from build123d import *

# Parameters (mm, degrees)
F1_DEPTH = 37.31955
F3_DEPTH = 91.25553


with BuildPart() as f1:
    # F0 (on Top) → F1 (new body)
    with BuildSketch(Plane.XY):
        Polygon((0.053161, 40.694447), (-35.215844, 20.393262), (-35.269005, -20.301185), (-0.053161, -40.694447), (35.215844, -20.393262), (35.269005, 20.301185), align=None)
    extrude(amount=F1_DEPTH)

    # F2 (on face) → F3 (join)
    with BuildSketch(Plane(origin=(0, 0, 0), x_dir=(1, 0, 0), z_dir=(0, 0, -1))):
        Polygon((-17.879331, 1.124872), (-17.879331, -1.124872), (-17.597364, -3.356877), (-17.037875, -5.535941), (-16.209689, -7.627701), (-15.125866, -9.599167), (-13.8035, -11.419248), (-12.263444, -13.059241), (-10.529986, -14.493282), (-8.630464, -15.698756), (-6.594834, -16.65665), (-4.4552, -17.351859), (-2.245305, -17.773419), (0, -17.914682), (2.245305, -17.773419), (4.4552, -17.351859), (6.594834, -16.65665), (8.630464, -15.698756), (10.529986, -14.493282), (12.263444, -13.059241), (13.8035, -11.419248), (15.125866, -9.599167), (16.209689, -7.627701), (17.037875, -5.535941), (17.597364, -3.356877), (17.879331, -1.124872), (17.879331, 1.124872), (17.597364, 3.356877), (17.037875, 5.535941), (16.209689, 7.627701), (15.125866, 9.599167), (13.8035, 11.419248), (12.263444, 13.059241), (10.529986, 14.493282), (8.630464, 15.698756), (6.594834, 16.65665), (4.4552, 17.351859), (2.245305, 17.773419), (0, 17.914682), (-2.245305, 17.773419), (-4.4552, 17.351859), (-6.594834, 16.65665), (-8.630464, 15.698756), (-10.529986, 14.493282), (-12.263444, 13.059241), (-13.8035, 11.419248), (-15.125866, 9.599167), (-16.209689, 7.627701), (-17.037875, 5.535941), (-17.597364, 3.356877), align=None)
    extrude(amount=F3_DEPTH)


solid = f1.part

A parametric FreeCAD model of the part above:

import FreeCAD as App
import Part
import Sketcher
from FreeCAD import Vector
Q = App.Units.Quantity

doc = App.newDocument("Part")
body = doc.addObject("PartDesign::Body", "Body")

sketch1 = body.newObject("Sketcher::SketchObject", "Sketch")
sketch1.AttachmentSupport = (doc.getObject("XY_Plane"), [""])
sketch1.MapMode = "FlatFace"
sketch1.addGeometry([
    Part.LineSegment(Vector(0.053161, 40.694447, 0), Vector(-35.215844, 20.393262, 0)),
    Part.LineSegment(Vector(-35.215844, 20.393262, 0), Vector(-35.269005, -20.301185, 0)),
    Part.LineSegment(Vector(-35.269005, -20.301185, 0), Vector(-0.053161, -40.694447, 0)),
    Part.LineSegment(Vector(-0.053161, -40.694447, 0), Vector(35.215844, -20.393262, 0)),
    Part.LineSegment(Vector(35.215844, -20.393262, 0), Vector(35.269005, 20.301185, 0)),
    Part.LineSegment(Vector(35.269005, 20.301185, 0), Vector(0.053161, 40.694447, 0)),
], False)
sketch1.addConstraint([
    Sketcher.Constraint("Coincident", 0, 2, 1, 1),
    Sketcher.Constraint("Coincident", 1, 2, 2, 1),
    Sketcher.Constraint("Coincident", 2, 2, 3, 1),
    Sketcher.Constraint("Coincident", 3, 2, 4, 1),
    Sketcher.Constraint("Coincident", 4, 2, 5, 1),
    Sketcher.Constraint("Coincident", 5, 2, 0, 1),
    Sketcher.Constraint("Symmetric", 0, 2, 3, 2, -1, 1),
    Sketcher.Constraint("Symmetric", 1, 2, 4, 2, -1, 1),
    Sketcher.Constraint("Symmetric", 2, 2, 5, 2, -1, 1),
    Sketcher.Constraint("Equal", 0, 1),
    Sketcher.Constraint("Equal", 1, 2),
    Sketcher.Constraint("Distance", 0, Q("40.694482 mm")),
    Sketcher.Constraint("DistanceY", -1, 1, 0, 2, Q("20.393262 mm")),
    Sketcher.Constraint("DistanceX", 2, 2, -1, 1, Q("0.053161 mm")),
    Sketcher.Constraint("DistanceY", 2, 2, 1, 2, Q("20.393262 mm")),
])
pad1 = body.newObject("PartDesign::Pad", "Pad")
pad1.Profile = sketch1
pad1.Length = 37.31955

sketch2 = body.newObject("Sketcher::SketchObject", "Sketch001")
sketch2.AttachmentSupport = (doc.getObject("XY_Plane"), [""])
sketch2.MapMode = "FlatFace"
sketch2.addGeometry([
    Part.LineSegment(Vector(-17.879331, -1.124872, 0), Vector(-17.879331, 1.124872, 0)),
    Part.LineSegment(Vector(-17.879331, 1.124872, 0), Vector(-17.597364, 3.356877, 0)),
    Part.LineSegment(Vector(-17.597364, 3.356877, 0), Vector(-17.037875, 5.535941, 0)),
    Part.LineSegment(Vector(-17.037875, 5.535941, 0), Vector(-16.209689, 7.627701, 0)),
    Part.LineSegment(Vector(-16.209689, 7.627701, 0), Vector(-15.125866, 9.599167, 0)),
    Part.LineSegment(Vector(-15.125866, 9.599167, 0), Vector(-13.8035, 11.419248, 0)),
    Part.LineSegment(Vector(-13.8035, 11.419248, 0), Vector(-12.263444, 13.059241, 0)),
    Part.LineSegment(Vector(-12.263444, 13.059241, 0), Vector(-10.529986, 14.493282, 0)),
    Part.LineSegment(Vector(-10.529986, 14.493282, 0), Vector(-8.630464, 15.698756, 0)),
    Part.LineSegment(Vector(-8.630464, 15.698756, 0), Vector(-6.594834, 16.65665, 0)),
    Part.LineSegment(Vector(-6.594834, 16.65665, 0), Vector(-4.4552, 17.351859, 0)),
    Part.LineSegment(Vector(-4.4552, 17.351859, 0), Vector(-2.245305, 17.773419, 0)),
    Part.LineSegment(Vector(-2.245305, 17.773419, 0), Vector(0, 17.914682, 0)),
    Part.LineSegment(Vector(0, 17.914682, 0), Vector(2.245305, 17.773419, 0)),
    Part.LineSegment(Vector(2.245305, 17.773419, 0), Vector(4.4552, 17.351859, 0)),
    Part.LineSegment(Vector(4.4552, 17.351859, 0), Vector(6.594834, 16.65665, 0)),
    Part.LineSegment(Vector(6.594834, 16.65665, 0), Vector(8.630464, 15.698756, 0)),
    Part.LineSegment(Vector(8.630464, 15.698756, 0), Vector(10.529986, 14.493282, 0)),
    Part.LineSegment(Vector(10.529986, 14.493282, 0), Vector(12.263444, 13.059241, 0)),
    Part.LineSegment(Vector(12.263444, 13.059241, 0), Vector(13.8035, 11.419248, 0)),
    Part.LineSegment(Vector(13.8035, 11.419248, 0), Vector(15.125866, 9.599167, 0)),
    Part.LineSegment(Vector(15.125866, 9.599167, 0), Vector(16.209689, 7.627701, 0)),
    Part.LineSegment(Vector(16.209689, 7.627701, 0), Vector(17.037875, 5.535941, 0)),
    Part.LineSegment(Vector(17.037875, 5.535941, 0), Vector(17.597364, 3.356877, 0)),
    Part.LineSegment(Vector(17.597364, 3.356877, 0), Vector(17.879331, 1.124872, 0)),
    Part.LineSegment(Vector(17.879331, 1.124872, 0), Vector(17.879331, -1.124872, 0)),
    Part.LineSegment(Vector(17.879331, -1.124872, 0), Vector(17.597364, -3.356877, 0)),
    Part.LineSegment(Vector(17.597364, -3.356877, 0), Vector(17.037875, -5.535941, 0)),
    Part.LineSegment(Vector(17.037875, -5.535941, 0), Vector(16.209689, -7.627701, 0)),
    Part.LineSegment(Vector(16.209689, -7.627701, 0), Vector(15.125866, -9.599167, 0)),
    Part.LineSegment(Vector(15.125866, -9.599167, 0), Vector(13.8035, -11.419248, 0)),
    Part.LineSegment(Vector(13.8035, -11.419248, 0), Vector(12.263444, -13.059241, 0)),
    Part.LineSegment(Vector(12.263444, -13.059241, 0), Vector(10.529986, -14.493282, 0)),
    Part.LineSegment(Vector(10.529986, -14.493282, 0), Vector(8.630464, -15.698756, 0)),
    Part.LineSegment(Vector(8.630464, -15.698756, 0), Vector(6.594834, -16.65665, 0)),
    Part.LineSegment(Vector(6.594834, -16.65665, 0), Vector(4.4552, -17.351859, 0)),
    Part.LineSegment(Vector(4.4552, -17.351859, 0), Vector(2.245305, -17.773419, 0)),
    Part.LineSegment(Vector(2.245305, -17.773419, 0), Vector(0, -17.914682, 0)),
    Part.LineSegment(Vector(0, -17.914682, 0), Vector(-2.245305, -17.773419, 0)),
    Part.LineSegment(Vector(-2.245305, -17.773419, 0), Vector(-4.4552, -17.351859, 0)),
    Part.LineSegment(Vector(-4.4552, -17.351859, 0), Vector(-6.594834, -16.65665, 0)),
    Part.LineSegment(Vector(-6.594834, -16.65665, 0), Vector(-8.630464, -15.698756, 0)),
    Part.LineSegment(Vector(-8.630464, -15.698756, 0), Vector(-10.529986, -14.493282, 0)),
    Part.LineSegment(Vector(-10.529986, -14.493282, 0), Vector(-12.263444, -13.059241, 0)),
    Part.LineSegment(Vector(-12.263444, -13.059241, 0), Vector(-13.8035, -11.419248, 0)),
    Part.LineSegment(Vector(-13.8035, -11.419248, 0), Vector(-15.125866, -9.599167, 0)),
    Part.LineSegment(Vector(-15.125866, -9.599167, 0), Vector(-16.209689, -7.627701, 0)),
    Part.LineSegment(Vector(-16.209689, -7.627701, 0), Vector(-17.037875, -5.535941, 0)),
    Part.LineSegment(Vector(-17.037875, -5.535941, 0), Vector(-17.597364, -3.356877, 0)),
    Part.LineSegment(Vector(-17.597364, -3.356877, 0), Vector(-17.879331, -1.124872, 0)),
], False)
sketch2.addConstraint([
    Sketcher.Constraint("Coincident", 0, 2, 1, 1),
    Sketcher.Constraint("Coincident", 1, 2, 2, 1),
    Sketcher.Constraint("Coincident", 2, 2, 3, 1),
    Sketcher.Constraint("Coincident", 3, 2, 4, 1),
    Sketcher.Constraint("Coincident", 4, 2, 5, 1),
    Sketcher.Constraint("Coincident", 5, 2, 6, 1),
    Sketcher.Constraint("Coincident", 6, 2, 7, 1),
    Sketcher.Constraint("Coincident", 7, 2, 8, 1),
    Sketcher.Constraint("Coincident", 8, 2, 9, 1),
    Sketcher.Constraint("Coincident", 9, 2, 10, 1),
    Sketcher.Constraint("Coincident", 10, 2, 11, 1),
    Sketcher.Constraint("Coincident", 11, 2, 12, 1),
    Sketcher.Constraint("Coincident", 12, 2, 13, 1),
    Sketcher.Constraint("Coincident", 13, 2, 14, 1),
    Sketcher.Constraint("Coincident", 14, 2, 15, 1),
    Sketcher.Constraint("Coincident", 15, 2, 16, 1),
    Sketcher.Constraint("Coincident", 16, 2, 17, 1),
    Sketcher.Constraint("Coincident", 17, 2, 18, 1),
    Sketcher.Constraint("Coincident", 18, 2, 19, 1),
    Sketcher.Constraint("Coincident", 19, 2, 20, 1),
    Sketcher.Constraint("Coincident", 20, 2, 21, 1),
    Sketcher.Constraint("Coincident", 21, 2, 22, 1),
    Sketcher.Constraint("Coincident", 22, 2, 23, 1),
    Sketcher.Constraint("Coincident", 23, 2, 24, 1),
    Sketcher.Constraint("Coincident", 24, 2, 25, 1),
    Sketcher.Constraint("Coincident", 25, 2, 26, 1),
    Sketcher.Constraint("Coincident", 26, 2, 27, 1),
    Sketcher.Constraint("Coincident", 27, 2, 28, 1),
    Sketcher.Constraint("Coincident", 28, 2, 29, 1),
    Sketcher.Constraint("Coincident", 29, 2, 30, 1),
    Sketcher.Constraint("Coincident", 30, 2, 31, 1),
    Sketcher.Constraint("Coincident", 31, 2, 32, 1),
    Sketcher.Constraint("Coincident", 32, 2, 33, 1),
    Sketcher.Constraint("Coincident", 33, 2, 34, 1),
    Sketcher.Constraint("Coincident", 34, 2, 35, 1),
    Sketcher.Constraint("Coincident", 35, 2, 36, 1),
    Sketcher.Constraint("Coincident", 36, 2, 37, 1),
    Sketcher.Constraint("Coincident", 37, 2, 38, 1),
    Sketcher.Constraint("Coincident", 38, 2, 39, 1),
    Sketcher.Constraint("Coincident", 39, 2, 40, 1),
    Sketcher.Constraint("Coincident", 40, 2, 41, 1),
    Sketcher.Constraint("Coincident", 41, 2, 42, 1),
    Sketcher.Constraint("Coincident", 42, 2, 43, 1),
    Sketcher.Constraint("Coincident", 43, 2, 44, 1),
    Sketcher.Constraint("Coincident", 44, 2, 45, 1),
    Sketcher.Constraint("Coincident", 45, 2, 46, 1),
    Sketcher.Constraint("Coincident", 46, 2, 47, 1),
    Sketcher.Constraint("Coincident", 47, 2, 48, 1),
    Sketcher.Constraint("Coincident", 48, 2, 49, 1),
    Sketcher.Constraint("Coincident", 49, 2, 0, 1),
    Sketcher.Constraint("Vertical", 0),
    Sketcher.Constraint("Vertical", 25),
    Sketcher.Constraint("Symmetric", 0, 2, 25, 2, -1, 1),
    Sketcher.Constraint("Symmetric", 1, 2, 26, 2, -1, 1),
    Sketcher.Constraint("Symmetric", 2, 2, 27, 2, -1, 1),
    Sketcher.Constraint("Symmetric", 3, 2, 28, 2, -1, 1),
    Sketcher.Constraint("Symmetric", 4, 2, 29, 2, -1, 1),
    Sketcher.Constraint("Symmetric", 5, 2, 30, 2, -1, 1),
    Sketcher.Constraint("Symmetric", 6, 2, 31, 2, -1, 1),
    Sketcher.Constraint("Symmetric", 7, 2, 32, 2, -1, 1),
    Sketcher.Constraint("Symmetric", 8, 2, 33, 2, -1, 1),
    Sketcher.Constraint("Symmetric", 9, 2, 34, 2, -1, 1),
    Sketcher.Constraint("Symmetric", 10, 2, 35, 2, -1, 1),
    Sketcher.Constraint("Symmetric", 11, 2, 36, 2, -1, 1),
    Sketcher.Constraint("Symmetric", 12, 2, 37, 2, -1, 1),
    Sketcher.Constraint("Symmetric", 13, 2, 38, 2, -1, 1),
    Sketcher.Constraint("Symmetric", 14, 2, 39, 2, -1, 1),
    Sketcher.Constraint("Symmetric", 15, 2, 40, 2, -1, 1),
    Sketcher.Constraint("Symmetric", 16, 2, 41, 2, -1, 1),
    Sketcher.Constraint("Symmetric", 17, 2, 42, 2, -1, 1),
    Sketcher.Constraint("Symmetric", 18, 2, 43, 2, -1, 1),
    Sketcher.Constraint("Symmetric", 19, 2, 44, 2, -1, 1),
    Sketcher.Constraint("Symmetric", 20, 2, 45, 2, -1, 1),
    Sketcher.Constraint("Symmetric", 21, 2, 46, 2, -1, 1),
    Sketcher.Constraint("Symmetric", 22, 2, 47, 2, -1, 1),
    Sketcher.Constraint("Symmetric", 23, 2, 48, 2, -1, 1),
    Sketcher.Constraint("Symmetric", 11, 2, 13, 2, -2),
    Sketcher.Constraint("Symmetric", 10, 2, 14, 2, -2),
    Sketcher.Constraint("Symmetric", 9, 2, 15, 2, -2),
    Sketcher.Constraint("Symmetric", 8, 2, 16, 2, -2),
    Sketcher.Constraint("Symmetric", 7, 2, 17, 2, -2),
    Sketcher.Constraint("Symmetric", 6, 2, 18, 2, -2),
    Sketcher.Constraint("Symmetric", 5, 2, 19, 2, -2),
    Sketcher.Constraint("Symmetric", 4, 2, 20, 2, -2),
    Sketcher.Constraint("Symmetric", 3, 2, 21, 2, -2),
    Sketcher.Constraint("Symmetric", 2, 2, 22, 2, -2),
    Sketcher.Constraint("Symmetric", 1, 2, 23, 2, -2),
    Sketcher.Constraint("PointOnObject", 12, 2, -2),
    Sketcher.Constraint("Parallel", 24, 49),
    Sketcher.Constraint("Horizontal", 0, 2, 24, 2),
    Sketcher.Constraint("Equal", 1, 2),
    Sketcher.Constraint("Equal", 2, 3),
    Sketcher.Constraint("Equal", 3, 4),
    Sketcher.Constraint("Equal", 4, 5),
    Sketcher.Constraint("Equal", 5, 6),
    Sketcher.Constraint("Equal", 6, 7),
    Sketcher.Constraint("Equal", 7, 8),
    Sketcher.Constraint("Equal", 8, 9),
    Sketcher.Constraint("Equal", 9, 10),
    Sketcher.Constraint("Equal", 10, 11),
    Sketcher.Constraint("Equal", 11, 12),
    Sketcher.Constraint("Angle", 5, Q("54.000005 deg")),
    Sketcher.Constraint("Angle", 10, Q("17.999994 deg")),
    Sketcher.Constraint("Angle", 2, Q("75.599989 deg")),
    Sketcher.Constraint("Angle", 3, Q("68.400009 deg")),
    Sketcher.Constraint("Angle", 4, Q("61.199991 deg")),
    Sketcher.Constraint("Angle", 6, Q("46.799999 deg")),
    Sketcher.Constraint("Angle", 7, Q("39.599997 deg")),
    Sketcher.Constraint("Angle", 8, Q("32.400015 deg")),
    Sketcher.Constraint("Angle", 9, Q("25.199982 deg")),
    Sketcher.Constraint("Angle", 11, Q("10.8 deg")),
    Sketcher.Constraint("Angle", 12, Q("3.60001 deg")),
    Sketcher.Constraint("DistanceY", -1, 1, 3, 2, Q("7.627701 mm")),
    Sketcher.Constraint("DistanceX", 5, 2, -1, 1, Q("13.8035 mm")),
    Sketcher.Constraint("DistanceY", 0, 1, 0, 2, Q("2.249744 mm")),
])
pad2 = body.newObject("PartDesign::Pad", "Pad001")
pad2.Profile = sketch2
pad2.Length = 91.25553
pad2.Reversed = True

doc.recompute()
